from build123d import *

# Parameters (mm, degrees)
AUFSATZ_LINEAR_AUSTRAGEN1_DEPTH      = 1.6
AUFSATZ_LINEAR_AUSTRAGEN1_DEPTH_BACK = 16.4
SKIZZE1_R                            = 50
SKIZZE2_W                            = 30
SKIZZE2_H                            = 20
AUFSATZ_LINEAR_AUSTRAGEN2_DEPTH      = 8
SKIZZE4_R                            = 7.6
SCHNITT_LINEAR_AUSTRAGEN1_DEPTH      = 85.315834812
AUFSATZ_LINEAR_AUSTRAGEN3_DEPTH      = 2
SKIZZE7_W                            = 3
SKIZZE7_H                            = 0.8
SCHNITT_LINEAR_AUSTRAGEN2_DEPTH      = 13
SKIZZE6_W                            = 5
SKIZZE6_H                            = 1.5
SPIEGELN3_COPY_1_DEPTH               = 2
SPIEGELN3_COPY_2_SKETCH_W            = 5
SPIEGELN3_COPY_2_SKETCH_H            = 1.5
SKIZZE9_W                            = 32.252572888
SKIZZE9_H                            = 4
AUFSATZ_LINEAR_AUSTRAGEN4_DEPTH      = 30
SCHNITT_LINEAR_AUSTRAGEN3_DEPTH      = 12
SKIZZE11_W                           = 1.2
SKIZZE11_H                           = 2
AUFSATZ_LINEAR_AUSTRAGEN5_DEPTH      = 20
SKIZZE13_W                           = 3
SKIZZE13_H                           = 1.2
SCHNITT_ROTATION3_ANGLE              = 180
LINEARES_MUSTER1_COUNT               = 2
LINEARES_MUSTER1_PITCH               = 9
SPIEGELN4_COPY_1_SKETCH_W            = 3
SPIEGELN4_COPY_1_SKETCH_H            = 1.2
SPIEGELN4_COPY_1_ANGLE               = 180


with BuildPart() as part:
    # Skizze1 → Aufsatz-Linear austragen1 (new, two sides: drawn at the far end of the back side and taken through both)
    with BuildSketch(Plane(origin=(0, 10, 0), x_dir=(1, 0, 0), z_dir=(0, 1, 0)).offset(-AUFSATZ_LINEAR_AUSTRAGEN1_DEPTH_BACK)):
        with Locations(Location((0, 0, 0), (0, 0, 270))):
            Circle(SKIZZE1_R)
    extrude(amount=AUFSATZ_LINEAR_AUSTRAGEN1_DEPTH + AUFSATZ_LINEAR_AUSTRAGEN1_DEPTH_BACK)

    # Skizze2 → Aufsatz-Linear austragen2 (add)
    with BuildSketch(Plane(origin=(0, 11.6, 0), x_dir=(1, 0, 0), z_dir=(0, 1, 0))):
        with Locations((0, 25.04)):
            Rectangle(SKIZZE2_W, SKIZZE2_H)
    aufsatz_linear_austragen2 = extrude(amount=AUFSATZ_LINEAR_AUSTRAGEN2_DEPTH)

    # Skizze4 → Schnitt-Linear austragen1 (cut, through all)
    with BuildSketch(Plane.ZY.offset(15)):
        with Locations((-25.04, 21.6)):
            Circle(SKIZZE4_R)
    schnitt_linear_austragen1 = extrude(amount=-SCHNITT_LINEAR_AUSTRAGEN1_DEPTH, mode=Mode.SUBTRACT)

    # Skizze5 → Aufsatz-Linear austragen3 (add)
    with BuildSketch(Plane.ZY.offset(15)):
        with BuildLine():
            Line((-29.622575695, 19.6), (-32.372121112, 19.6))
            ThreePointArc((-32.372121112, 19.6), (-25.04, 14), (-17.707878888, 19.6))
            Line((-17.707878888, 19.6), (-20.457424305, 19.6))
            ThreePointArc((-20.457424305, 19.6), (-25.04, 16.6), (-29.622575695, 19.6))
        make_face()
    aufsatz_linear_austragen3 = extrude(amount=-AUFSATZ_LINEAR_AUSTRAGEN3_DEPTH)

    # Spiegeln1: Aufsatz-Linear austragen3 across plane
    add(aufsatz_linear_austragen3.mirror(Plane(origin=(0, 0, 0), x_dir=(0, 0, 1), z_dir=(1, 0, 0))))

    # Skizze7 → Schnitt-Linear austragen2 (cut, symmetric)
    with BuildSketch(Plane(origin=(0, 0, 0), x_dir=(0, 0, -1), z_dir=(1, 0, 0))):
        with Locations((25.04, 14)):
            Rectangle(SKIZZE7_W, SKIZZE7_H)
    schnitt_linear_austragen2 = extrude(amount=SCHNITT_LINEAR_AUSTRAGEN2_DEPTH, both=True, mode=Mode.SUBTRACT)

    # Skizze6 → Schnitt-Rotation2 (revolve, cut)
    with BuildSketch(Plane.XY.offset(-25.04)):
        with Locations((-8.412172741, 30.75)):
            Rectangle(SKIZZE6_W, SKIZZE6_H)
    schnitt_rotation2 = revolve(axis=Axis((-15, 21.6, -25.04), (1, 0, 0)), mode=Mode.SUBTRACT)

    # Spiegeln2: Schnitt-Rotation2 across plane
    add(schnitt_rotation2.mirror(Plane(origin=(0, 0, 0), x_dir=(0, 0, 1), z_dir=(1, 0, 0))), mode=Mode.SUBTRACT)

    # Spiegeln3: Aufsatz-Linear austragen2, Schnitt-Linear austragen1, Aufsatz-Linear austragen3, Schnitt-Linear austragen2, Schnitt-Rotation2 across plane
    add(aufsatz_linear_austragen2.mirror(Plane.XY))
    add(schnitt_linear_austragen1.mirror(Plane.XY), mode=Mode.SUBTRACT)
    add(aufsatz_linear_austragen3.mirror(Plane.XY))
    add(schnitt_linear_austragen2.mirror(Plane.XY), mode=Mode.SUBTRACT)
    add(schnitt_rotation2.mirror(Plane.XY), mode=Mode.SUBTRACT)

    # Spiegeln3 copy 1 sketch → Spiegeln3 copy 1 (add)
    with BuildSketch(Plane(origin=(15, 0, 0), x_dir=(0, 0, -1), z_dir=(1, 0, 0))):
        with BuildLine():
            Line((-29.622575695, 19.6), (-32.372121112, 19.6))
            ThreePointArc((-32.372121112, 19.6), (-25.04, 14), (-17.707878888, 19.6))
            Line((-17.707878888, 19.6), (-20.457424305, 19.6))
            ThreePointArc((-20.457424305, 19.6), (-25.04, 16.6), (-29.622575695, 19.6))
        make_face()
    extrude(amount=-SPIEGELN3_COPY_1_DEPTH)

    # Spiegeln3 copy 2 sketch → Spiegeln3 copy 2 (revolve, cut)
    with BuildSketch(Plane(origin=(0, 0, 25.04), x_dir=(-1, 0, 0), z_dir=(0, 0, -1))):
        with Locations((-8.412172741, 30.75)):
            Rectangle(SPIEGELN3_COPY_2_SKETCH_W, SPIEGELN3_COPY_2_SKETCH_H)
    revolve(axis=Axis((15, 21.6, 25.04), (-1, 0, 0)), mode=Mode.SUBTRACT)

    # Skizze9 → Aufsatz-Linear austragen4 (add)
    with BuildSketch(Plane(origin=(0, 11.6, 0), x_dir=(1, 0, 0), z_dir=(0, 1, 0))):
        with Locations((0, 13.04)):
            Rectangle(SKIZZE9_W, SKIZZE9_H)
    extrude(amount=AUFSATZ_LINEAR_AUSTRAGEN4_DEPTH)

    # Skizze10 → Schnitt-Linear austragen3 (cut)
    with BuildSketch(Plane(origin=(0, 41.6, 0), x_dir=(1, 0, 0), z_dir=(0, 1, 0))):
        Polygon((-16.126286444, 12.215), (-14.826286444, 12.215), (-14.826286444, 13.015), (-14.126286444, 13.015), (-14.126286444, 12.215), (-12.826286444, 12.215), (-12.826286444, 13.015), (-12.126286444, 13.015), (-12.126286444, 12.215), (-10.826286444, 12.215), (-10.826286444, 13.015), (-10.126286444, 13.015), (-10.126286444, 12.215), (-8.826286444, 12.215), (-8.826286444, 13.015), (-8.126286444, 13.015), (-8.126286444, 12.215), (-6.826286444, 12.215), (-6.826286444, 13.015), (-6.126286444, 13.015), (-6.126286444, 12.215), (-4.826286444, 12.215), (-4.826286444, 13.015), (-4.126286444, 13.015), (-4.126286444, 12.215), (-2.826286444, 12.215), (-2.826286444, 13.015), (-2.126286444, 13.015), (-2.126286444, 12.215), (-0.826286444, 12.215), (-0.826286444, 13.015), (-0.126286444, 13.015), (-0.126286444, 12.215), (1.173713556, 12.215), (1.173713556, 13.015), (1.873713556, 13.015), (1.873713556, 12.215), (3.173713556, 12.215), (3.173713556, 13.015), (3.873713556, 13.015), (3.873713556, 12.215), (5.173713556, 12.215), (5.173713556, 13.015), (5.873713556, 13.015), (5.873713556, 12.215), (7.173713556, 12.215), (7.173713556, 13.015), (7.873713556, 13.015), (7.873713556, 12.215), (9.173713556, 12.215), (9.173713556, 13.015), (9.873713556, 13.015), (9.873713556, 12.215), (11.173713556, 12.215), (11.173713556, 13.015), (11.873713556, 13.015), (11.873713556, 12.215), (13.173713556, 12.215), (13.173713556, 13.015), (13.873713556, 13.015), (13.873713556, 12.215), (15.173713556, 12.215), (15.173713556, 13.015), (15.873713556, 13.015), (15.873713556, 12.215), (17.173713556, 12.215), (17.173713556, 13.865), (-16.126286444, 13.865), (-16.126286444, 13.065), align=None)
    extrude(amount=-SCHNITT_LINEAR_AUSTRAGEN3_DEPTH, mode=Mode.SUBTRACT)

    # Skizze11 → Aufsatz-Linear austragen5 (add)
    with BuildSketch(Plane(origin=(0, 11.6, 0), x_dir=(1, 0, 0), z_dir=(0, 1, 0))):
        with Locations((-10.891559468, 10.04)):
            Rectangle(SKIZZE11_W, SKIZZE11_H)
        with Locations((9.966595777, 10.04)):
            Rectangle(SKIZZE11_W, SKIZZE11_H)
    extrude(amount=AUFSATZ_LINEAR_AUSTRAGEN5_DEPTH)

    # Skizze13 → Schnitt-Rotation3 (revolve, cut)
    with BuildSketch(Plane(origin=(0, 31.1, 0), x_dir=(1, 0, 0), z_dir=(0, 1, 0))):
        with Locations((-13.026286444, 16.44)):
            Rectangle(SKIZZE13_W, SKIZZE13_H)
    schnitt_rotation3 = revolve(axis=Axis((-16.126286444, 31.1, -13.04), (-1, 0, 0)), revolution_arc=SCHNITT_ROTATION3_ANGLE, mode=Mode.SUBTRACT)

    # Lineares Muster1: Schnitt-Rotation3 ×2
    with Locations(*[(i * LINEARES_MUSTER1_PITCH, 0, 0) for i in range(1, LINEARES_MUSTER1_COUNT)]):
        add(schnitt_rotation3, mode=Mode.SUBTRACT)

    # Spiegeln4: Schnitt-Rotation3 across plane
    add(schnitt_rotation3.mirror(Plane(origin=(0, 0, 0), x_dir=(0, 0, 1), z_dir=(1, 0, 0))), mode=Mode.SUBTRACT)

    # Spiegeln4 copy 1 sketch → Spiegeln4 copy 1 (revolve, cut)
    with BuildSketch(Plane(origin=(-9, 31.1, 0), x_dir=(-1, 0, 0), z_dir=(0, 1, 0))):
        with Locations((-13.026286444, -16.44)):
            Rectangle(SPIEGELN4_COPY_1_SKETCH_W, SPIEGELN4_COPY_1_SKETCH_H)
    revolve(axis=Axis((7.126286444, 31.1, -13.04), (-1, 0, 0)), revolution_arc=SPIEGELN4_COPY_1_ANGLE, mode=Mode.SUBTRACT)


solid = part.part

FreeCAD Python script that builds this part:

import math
import FreeCAD as App
import Part
import Sketcher
from FreeCAD import Vector


def add_polygon(sketch, points):
    """Adds a closed chain of lines whose ends are joined by coincident constraints."""
    first, n = sketch.GeometryCount, len(points)
    for a, b in zip(points, points[1:] + points[:1]):
        sketch.addGeometry(Part.LineSegment(App.Vector(*a, 0), App.Vector(*b, 0)), False)
    for i in range(n):
        sketch.addConstraint(Sketcher.Constraint("Coincident", first + i, 2, first + (i + 1) % n, 1))

doc = App.newDocument("Part")
body = doc.addObject("PartDesign::Body", "Body")

sketch1 = body.newObject("Sketcher::SketchObject", "Sketch")
sketch1.AttachmentSupport = (doc.getObject("XZ_Plane"), [""])
sketch1.MapMode = "FlatFace"
sketch1.AttachmentOffset = App.Placement(Vector(0, 0, -10), App.Rotation())
sketch1.addGeometry(Part.Circle(Vector(0, 0, 0), Vector(0, 0, 1), 50), False)
sketch1.addConstraint([
    Sketcher.Constraint("Coincident", 0, 3, -1, 1),
    Sketcher.Constraint("Diameter", 0, 100.0),
])
pad1 = body.newObject("PartDesign::Pad", "Pad")
pad1.Profile = sketch1
pad1.Type = "TwoLengths"
pad1.Length = 1.6
pad1.Length2 = 16.4
pad1.Reversed = True

sketch2 = body.newObject("Sketcher::SketchObject", "Sketch001")
sketch2.AttachmentSupport = (doc.getObject("XZ_Plane"), [""])
sketch2.MapMode = "FlatFace"
sketch2.AttachmentOffset = App.Placement(Vector(0, 0, -11.6), App.Rotation())
add_polygon(sketch2, [(-15, -35), (-15, -15), (15, -15), (15, -35)])
sketch2.addConstraint([
    Sketcher.Constraint("Vertical", 0),
    Sketcher.Constraint("Horizontal", 1),
    Sketcher.Constraint("Vertical", 2),
    Sketcher.Constraint("Horizontal", 3),
    Sketcher.Constraint("DistanceX", 1, 1, 1, 2, 30.0),
    Sketcher.Constraint("DistanceY", 0, 1, 0, 2, 20.0),
    Sketcher.Constraint("DistanceX", 0, 2, -1, 1, 15.0),
    Sketcher.Constraint("DistanceY", 0, 2, -1, 1, 15.04),
])
pad2 = body.newObject("PartDesign::Pad", "Pad001")
pad2.Profile = sketch2
pad2.Length = 8
pad2.Reversed = True

sketch3 = body.newObject("Sketcher::SketchObject", "Sketch002")
sketch3.AttachmentSupport = (doc.getObject("YZ_Plane"), [""])
sketch3.MapMode = "FlatFace"
sketch3.AttachmentOffset = App.Placement(Vector(0, 0, -15), App.Rotation())
sketch3.addGeometry(Part.Circle(Vector(22, -25, 0), Vector(0, 0, 1), 8), False)
sketch3.addConstraint([
    Sketcher.Constraint("Diameter", 0, 15.2),
    Sketcher.Constraint("DistanceX", -1, 1, 0, 3, 21.6),
    Sketcher.Constraint("DistanceY", 0, 3, -1, 1, 25.04),
])
pocket1 = body.newObject("PartDesign::Pocket", "Pocket")
pocket1.Profile = sketch3
pocket1.Type = "ThroughAll"
pocket1.Reversed = True

sketch4 = body.newObject("Sketcher::SketchObject", "Sketch003")
sketch4.AttachmentSupport = (doc.getObject("YZ_Plane"), [""])
sketch4.MapMode = "FlatFace"
sketch4.AttachmentOffset = App.Placement(Vector(0, 0, -15), App.Rotation())
sketch4.addGeometry([
    Part.LineSegment(Vector(19.6, -29.6, 0), Vector(19.6, -32.4, 0)),
    Part.ArcOfCircle(Part.Circle(Vector(21.6, -25, 0), Vector(0, 0, 1), 7.6), math.radians(105), math.radians(255)),
    Part.LineSegment(Vector(19.6, -17.7, 0), Vector(19.6, -20.5, 0)),
    Part.ArcOfCircle(Part.Circle(Vector(21.6, -25, 0), Vector(0, 0, 1), 5), math.radians(114), math.radians(246)),
], False)
sketch4.addConstraint([
    Sketcher.Constraint("Coincident", 0, 2, 1, 2),
    Sketcher.Constraint("Coincident", 1, 1, 2, 1),
    Sketcher.Constraint("Coincident", 2, 2, 3, 1),
    Sketcher.Constraint("Coincident", 3, 2, 0, 1),
    Sketcher.Constraint("Vertical", 0),
    Sketcher.Constraint("Vertical", 2),
    Sketcher.Constraint("Coincident", 3, 3, 1, 3),
    Sketcher.Constraint("Vertical", 0, 2, 1, 1),
    Sketcher.Constraint("Radius", 3, 5.0),
    Sketcher.Constraint("Radius", 1, 7.6),
    Sketcher.Constraint("DistanceX", 0, 2, 1, 3, 2.0),
    Sketcher.Constraint("DistanceX", -1, 1, 1, 3, 21.6),
    Sketcher.Constraint("DistanceY", 1, 3, -1, 1, 25.04),
])
pad3 = body.newObject("PartDesign::Pad", "Pad002")
pad3.Profile = sketch4
pad3.Length = 2
doc.recompute()

mirrored = body.newObject("PartDesign::Mirrored", "Mirrored")
mirrored.Originals = [pad3]
mirrored.MirrorPlane = (doc.getObject("YZ_Plane"), [""])
body.Tip = mirrored

sketch5 = body.newObject("Sketcher::SketchObject", "Sketch004")
sketch5.AttachmentSupport = (doc.getObject("YZ_Plane"), [""])
sketch5.MapMode = "FlatFace"
add_polygon(sketch5, [(14.4, -23.5), (13.6, -23.5), (13.6, -26.5), (14.4, -26.5)])
sketch5.addConstraint([
    Sketcher.Constraint("Horizontal", 0),
    Sketcher.Constraint("Vertical", 1),
    Sketcher.Constraint("Horizontal", 2),
    Sketcher.Constraint("Vertical", 3),
    Sketcher.Constraint("DistanceY", 1, 2, 1, 1, 3.0),
    Sketcher.Constraint("DistanceX", 0, 2, 0, 1, 0.8),
    Sketcher.Constraint("DistanceX", -1, 1, 0, 2, 13.6),
    Sketcher.Constraint("DistanceY", 0, 2, -1, 1, 23.54),
])
pocket2 = body.newObject("PartDesign::Pocket", "Pocket001")
pocket2.Profile = sketch5
pocket2.Length = 26
pocket2.Midplane = True

sketch6 = body.newObject("Sketcher::SketchObject", "Sketch005")
sketch6.AttachmentSupport = (doc.getObject("XY_Plane"), [""])
sketch6.MapMode = "FlatFace"
sketch6.AttachmentOffset = App.Placement(Vector(0, 0, -25.04), App.Rotation())
add_polygon(sketch6, [(-10.9, 31.5), (-10.9, 30), (-5.9, 30), (-5.9, 31.5)])
sketch6.addGeometry(Part.LineSegment(Vector(-10.9, 21.6, 0), Vector(-5.9, 21.6, 0)), True)
sketch6.addConstraint([
    Sketcher.Constraint("Vertical", 0),
    Sketcher.Constraint("Horizontal", 1),
    Sketcher.Constraint("Vertical", 2),
    Sketcher.Constraint("Horizontal", 3),
    Sketcher.Constraint("Horizontal", 4),
    Sketcher.Constraint("Vertical", 3, 2, 4, 1),
    Sketcher.Constraint("Vertical", 2, 2, 4, 2),
    Sketcher.Constraint("DistanceX", 1, 1, 1, 2, 5.0),
    Sketcher.Constraint("DistanceY", 0, 2, 0, 1, 1.5),
    Sketcher.Constraint("DistanceY", -1, 1, 0, 2, 30.0),
    Sketcher.Constraint("DistanceY", -1, 1, 4, 1, 21.6),
    Sketcher.Constraint("DistanceX", 0, 2, -1, 1, 10.912173),
])
groove = body.newObject("PartDesign::Groove", "Groove")
groove.Profile = sketch6
groove.ReferenceAxis = (sketch6, ["Axis0"])
groove.Angle = 360
doc.recompute()

mirrored2 = body.newObject("PartDesign::Mirrored", "Mirrored001")
mirrored2.Originals = [groove]
mirrored2.MirrorPlane = (doc.getObject("YZ_Plane"), [""])
body.Tip = mirrored2
doc.recompute()

mirrored3 = body.newObject("PartDesign::Mirrored", "Mirrored002")
mirrored3.Originals = [pad2, pocket1, pad3, pocket2, groove]
mirrored3.MirrorPlane = (doc.getObject("XY_Plane"), [""])
body.Tip = mirrored3

sketch7 = body.newObject("Sketcher::SketchObject", "Sketch006")
sketch7.AttachmentSupport = (doc.getObject("YZ_Plane"), [""])
sketch7.MapMode = "FlatFace"
sketch7.AttachmentOffset = App.Placement(Vector(0, 0, 15), App.Rotation())
sketch7.addGeometry([
    Part.LineSegment(Vector(19.6, 29.6, 0), Vector(19.6, 32.4, 0)),
    Part.ArcOfCircle(Part.Circle(Vector(21.6, 25, 0), Vector(0, 0, 1), 7.6), math.radians(105), math.radians(255)),
    Part.LineSegment(Vector(19.6, 17.7, 0), Vector(19.6, 20.5, 0)),
    Part.ArcOfCircle(Part.Circle(Vector(21.6, 25, 0), Vector(0, 0, 1), 5), math.radians(114), math.radians(246)),
], False)
sketch7.addConstraint([
    Sketcher.Constraint("Coincident", 0, 2, 1, 1),
    Sketcher.Constraint("Coincident", 1, 2, 2, 1),
    Sketcher.Constraint("Coincident", 2, 2, 3, 2),
    Sketcher.Constraint("Coincident", 3, 1, 0, 1),
    Sketcher.Constraint("Vertical", 0),
    Sketcher.Constraint("Vertical", 2),
    Sketcher.Constraint("Coincident", 3, 3, 1, 3),
    Sketcher.Constraint("Vertical", 0, 2, 1, 2),
    Sketcher.Constraint("Radius", 3, 5.0),
    Sketcher.Constraint("Radius", 1, 7.6),
    Sketcher.Constraint("DistanceX", 0, 2, 1, 3, 2.0),
    Sketcher.Constraint("DistanceX", -1, 1, 1, 3, 21.6),
    Sketcher.Constraint("DistanceY", -1, 1, 1, 3, 25.04),
])
pad4 = body.newObject("PartDesign::Pad", "Pad003")
pad4.Profile = sketch7
pad4.Length = 2
pad4.Reversed = True

sketch8 = body.newObject("Sketcher::SketchObject", "Sketch007")
sketch8.AttachmentSupport = (doc.getObject("XY_Plane"), [""])
sketch8.MapMode = "FlatFace"
sketch8.AttachmentOffset = App.Placement(Vector(0, 0, 25.04), App.Rotation())
add_polygon(sketch8, [(10.9, 31.5), (10.9, 30), (5.9, 30), (5.9, 31.5)])
sketch8.addGeometry(Part.LineSegment(Vector(10.9, 21.6, 0), Vector(5.9, 21.6, 0)), True)
sketch8.addConstraint([
    Sketcher.Constraint("Vertical", 0),
    Sketcher.Constraint("Horizontal", 1),
    Sketcher.Constraint("Vertical", 2),
    Sketcher.Constraint("Horizontal", 3),
    Sketcher.Constraint("Horizontal", 4),
    Sketcher.Constraint("Vertical", 3, 2, 4, 1),
    Sketcher.Constraint("Vertical", 2, 2, 4, 2),
    Sketcher.Constraint("DistanceX", 1, 2, 1, 1, 5.0),
    Sketcher.Constraint("DistanceY", 0, 2, 0, 1, 1.5),
    Sketcher.Constraint("DistanceY", -1, 1, 0, 2, 30.0),
    Sketcher.Constraint("DistanceY", -1, 1, 4, 1, 21.6),
    Sketcher.Constraint("DistanceX", -1, 1, 0, 2, 10.912173),
])
groove2 = body.newObject("PartDesign::Groove", "Groove001")
groove2.Profile = sketch8
groove2.ReferenceAxis = (sketch8, ["Axis0"])
groove2.Angle = 360

sketch9 = body.newObject("Sketcher::SketchObject", "Sketch008")
sketch9.AttachmentSupport = (doc.getObject("XZ_Plane"), [""])
sketch9.MapMode = "FlatFace"
sketch9.AttachmentOffset = App.Placement(Vector(0, 0, -11.6), App.Rotation())
add_polygon(sketch9, [(-16.1, -15), (-16.1, -11), (16.1, -11), (16.1, -15)])
sketch9.addConstraint([
    Sketcher.Constraint("Vertical", 0),
    Sketcher.Constraint("Horizontal", 1),
    Sketcher.Constraint("Vertical", 2),
    Sketcher.Constraint("Horizontal", 3),
    Sketcher.Constraint("DistanceY", 0, 1, 0, 2, 4.0),
    Sketcher.Constraint("DistanceY", 0, 2, -1, 1, 11.04),
    Sketcher.Constraint("DistanceX", 1, 1, 1, 2, 32.252573),
    Sketcher.Constraint("DistanceX", 0, 2, -1, 1, 16.126286),
])
pad5 = body.newObject("PartDesign::Pad", "Pad004")
pad5.Profile = sketch9
pad5.Length = 30
pad5.Reversed = True

sketch10 = body.newObject("Sketcher::SketchObject", "Sketch009")
sketch10.AttachmentSupport = (doc.getObject("XZ_Plane"), [""])
sketch10.MapMode = "FlatFace"
sketch10.AttachmentOffset = App.Placement(Vector(0, 0, -41.6), App.Rotation())
add_polygon(sketch10, [(-16.1, -12.2), (-14.8, -12.2), (-14.8, -13), (-14.1, -13), (-14.1, -12.2), (-12.8, -12.2), (-12.8, -13), (-12.1, -13), (-12.1, -12.2), (-10.8, -12.2), (-10.8, -13), (-10.1, -13), (-10.1, -12.2), (-8.8, -12.2), (-8.8, -13), (-8.1, -13), (-8.1, -12.2), (-6.8, -12.2), (-6.8, -13), (-6.1, -13), (-6.1, -12.2), (-4.8, -12.2), (-4.8, -13), (-4.1, -13), (-4.1, -12.2), (-2.8, -12.2), (-2.8, -13), (-2.1, -13), (-2.1, -12.2), (-0.8, -12.2), (-0.8, -13), (-0.1, -13), (-0.1, -12.2), (1.2, -12.2), (1.2, -13), (1.9, -13), (1.9, -12.2), (3.2, -12.2), (3.2, -13), (3.9, -13), (3.9, -12.2), (5.2, -12.2), (5.2, -13), (5.9, -13), (5.9, -12.2), (7.2, -12.2), (7.2, -13), (7.9, -13), (7.9, -12.2), (9.2, -12.2), (9.2, -13), (9.9, -13), (9.9, -12.2), (11.2, -12.2), (11.2, -13), (11.9, -13), (11.9, -12.2), (13.2, -12.2), (13.2, -13), (13.9, -13), (13.9, -12.2), (15.2, -12.2), (15.2, -13), (15.9, -13), (15.9, -12.2), (17.2, -12.2), (17.2, -13.9), (-16.1, -13.9)])
sketch10.addConstraint([
    Sketcher.Constraint("Horizontal", 0),
    Sketcher.Constraint("Vertical", 1),
    Sketcher.Constraint("Horizontal", 2),
    Sketcher.Constraint("Vertical", 3),
    Sketcher.Constraint("Horizontal", 4),
    Sketcher.Constraint("Vertical", 5),
    Sketcher.Constraint("Horizontal", 6),
    Sketcher.Constraint("Vertical", 7),
    Sketcher.Constraint("Horizontal", 8),
    Sketcher.Constraint("Vertical", 9),
    Sketcher.Constraint("Horizontal", 10),
    Sketcher.Constraint("Vertical", 11),
    Sketcher.Constraint("Horizontal", 12),
    Sketcher.Constraint("Vertical", 13),
    Sketcher.Constraint("Horizontal", 14),
    Sketcher.Constraint("Vertical", 15),
    Sketcher.Constraint("Horizontal", 16),
    Sketcher.Constraint("Vertical", 17),
    Sketcher.Constraint("Horizontal", 18),
    Sketcher.Constraint("Vertical", 19),
    Sketcher.Constraint("Horizontal", 20),
    Sketcher.Constraint("Vertical", 21),
    Sketcher.Constraint("Horizontal", 22),
    Sketcher.Constraint("Vertical", 23),
    Sketcher.Constraint("Horizontal", 24),
    Sketcher.Constraint("Vertical", 25),
    Sketcher.Constraint("Horizontal", 26),
    Sketcher.Constraint("Vertical", 27),
    Sketcher.Constraint("Horizontal", 28),
    Sketcher.Constraint("Vertical", 29),
    Sketcher.Constraint("Horizontal", 30),
    Sketcher.Constraint("Vertical", 31),
    Sketcher.Constraint("Horizontal", 32),
    Sketcher.Constraint("Vertical", 33),
    Sketcher.Constraint("Horizontal", 34),
    Sketcher.Constraint("Vertical", 35),
    Sketcher.Constraint("Horizontal", 36),
    Sketcher.Constraint("Vertical", 37),
    Sketcher.Constraint("Horizontal", 38),
    Sketcher.Constraint("Vertical", 39),
    Sketcher.Constraint("Horizontal", 40),
    Sketcher.Constraint("Vertical", 41),
    Sketcher.Constraint("Horizontal", 42),
    Sketcher.Constraint("Vertical", 43),
    Sketcher.Constraint("Horizontal", 44),
    Sketcher.Constraint("Vertical", 45),
    Sketcher.Constraint("Horizontal", 46),
    Sketcher.Constraint("Vertical", 47),
    Sketcher.Constraint("Horizontal", 48),
    Sketcher.Constraint("Vertical", 49),
    Sketcher.Constraint("Horizontal", 50),
    Sketcher.Constraint("Vertical", 51),
    Sketcher.Constraint("Horizontal", 52),
    Sketcher.Constraint("Vertical", 53),
    Sketcher.Constraint("Horizontal", 54),
    Sketcher.Constraint("Vertical", 55),
    Sketcher.Constraint("Horizontal", 56),
    Sketcher.Constraint("Vertical", 57),
    Sketcher.Constraint("Horizontal", 58),
    Sketcher.Constraint("Vertical", 59),
    Sketcher.Constraint("Horizontal", 60),
    Sketcher.Constraint("Vertical", 61),
    Sketcher.Constraint("Horizontal", 62),
    Sketcher.Constraint("Vertical", 63),
    Sketcher.Constraint("Horizontal", 64),
    Sketcher.Constraint("Vertical", 65),
    Sketcher.Constraint("Horizontal", 66),
    Sketcher.Constraint("Vertical", 67),
    Sketcher.Constraint("Horizontal", 0, 2, 3, 2),
    Sketcher.Constraint("Horizontal", 2, 2, 5, 2),
    Sketcher.Constraint("Horizontal", 4, 2, 7, 2),
    Sketcher.Constraint("Horizontal", 6, 2, 9, 2),
    Sketcher.Constraint("Horizontal", 8, 2, 11, 2),
    Sketcher.Constraint("Horizontal", 10, 2, 13, 2),
    Sketcher.Constraint("Horizontal", 12, 2, 15, 2),
    Sketcher.Constraint("Horizontal", 14, 2, 17, 2),
    Sketcher.Constraint("Horizontal", 16, 2, 19, 2),
    Sketcher.Constraint("Horizontal", 18, 2, 21, 2),
    Sketcher.Constraint("Horizontal", 20, 2, 23, 2),
    Sketcher.Constraint("Horizontal", 22, 2, 25, 2),
    Sketcher.Constraint("Horizontal", 24, 2, 27, 2),
    Sketcher.Constraint("Horizontal", 26, 2, 29, 2),
    Sketcher.Constraint("Horizontal", 28, 2, 31, 2),
    Sketcher.Constraint("Horizontal", 30, 2, 33, 2),
    Sketcher.Constraint("Horizontal", 32, 2, 35, 2),
    Sketcher.Constraint("Horizontal", 34, 2, 37, 2),
    Sketcher.Constraint("Horizontal", 36, 2, 39, 2),
    Sketcher.Constraint("Horizontal", 38, 2, 41, 2),
    Sketcher.Constraint("Horizontal", 40, 2, 43, 2),
    Sketcher.Constraint("Horizontal", 42, 2, 45, 2),
    Sketcher.Constraint("Horizontal", 44, 2, 47, 2),
    Sketcher.Constraint("Horizontal", 46, 2, 49, 2),
    Sketcher.Constraint("Horizontal", 48, 2, 51, 2),
    Sketcher.Constraint("Horizontal", 50, 2, 53, 2),
    Sketcher.Constraint("Horizontal", 52, 2, 55, 2),
    Sketcher.Constraint("Horizontal", 54, 2, 57, 2),
    Sketcher.Constraint("Horizontal", 56, 2, 59, 2),
    Sketcher.Constraint("Horizontal", 58, 2, 61, 2),
    Sketcher.Constraint("Horizontal", 60, 2, 63, 2),
    Sketcher.Constraint("Equal", 0, 4),
    Sketcher.Constraint("Equal", 2, 6),
    Sketcher.Constraint("Equal", 4, 8),
    Sketcher.Constraint("Equal", 6, 10),
    Sketcher.Constraint("Equal", 8, 12),
    Sketcher.Constraint("Equal", 10, 14),
    Sketcher.Constraint("Equal", 12, 16),
    Sketcher.Constraint("Equal", 14, 18),
    Sketcher.Constraint("Equal", 16, 20),
    Sketcher.Constraint("Equal", 18, 22),
    Sketcher.Constraint("Equal", 20, 24),
    Sketcher.Constraint("Equal", 22, 26),
    Sketcher.Constraint("Equal", 24, 28),
    Sketcher.Constraint("Equal", 26, 30),
    Sketcher.Constraint("Equal", 28, 32),
    Sketcher.Constraint("Equal", 30, 34),
    Sketcher.Constraint("Equal", 32, 36),
    Sketcher.Constraint("Equal", 34, 38),
    Sketcher.Constraint("Equal", 36, 40),
    Sketcher.Constraint("Equal", 38, 42),
    Sketcher.Constraint("Equal", 40, 44),
    Sketcher.Constraint("Equal", 42, 46),
    Sketcher.Constraint("Equal", 44, 48),
    Sketcher.Constraint("Equal", 46, 50),
    Sketcher.Constraint("Equal", 48, 52),
    Sketcher.Constraint("Equal", 50, 54),
    Sketcher.Constraint("Equal", 52, 56),
    Sketcher.Constraint("Equal", 54, 58),
    Sketcher.Constraint("Equal", 56, 60),
    Sketcher.Constraint("Equal", 58, 62),
    Sketcher.Constraint("Equal", 60, 64),
    Sketcher.Constraint("DistanceX", 0, 1, 0, 2, 1.3),
    Sketcher.Constraint("DistanceX", 2, 1, 2, 2, 0.7),
    Sketcher.Constraint("DistanceY", 1, 2, 1, 1, 0.8),
    Sketcher.Constraint("DistanceY", 65, 2, 65, 1, 1.65),
    Sketcher.Constraint("DistanceY", 0, 2, -1, 1, 12.215),
    Sketcher.Constraint("DistanceX", 0, 2, -1, 1, 14.826286),
])
pocket3 = body.newObject("PartDesign::Pocket", "Pocket002")
pocket3.Profile = sketch10
pocket3.Length = 12
pocket3.Reversed = True

sketch11 = body.newObject("Sketcher::SketchObject", "Sketch010")
sketch11.AttachmentSupport = (doc.getObject("XZ_Plane"), [""])
sketch11.MapMode = "FlatFace"
sketch11.AttachmentOffset = App.Placement(Vector(0, 0, -11.6), App.Rotation())
add_polygon(sketch11, [(-11.5, -11), (-11.5, -9), (-10.3, -9), (-10.3, -11)])
add_polygon(sketch11, [(9.4, -11), (9.4, -9), (10.6, -9), (10.6, -11)])
sketch11.addConstraint([
    Sketcher.Constraint("Vertical", 0),
    Sketcher.Constraint("Horizontal", 1),
    Sketcher.Constraint("Vertical", 2),
    Sketcher.Constraint("Horizontal", 3),
    Sketcher.Constraint("Vertical", 4),
    Sketcher.Constraint("Horizontal", 5),
    Sketcher.Constraint("Vertical", 6),
    Sketcher.Constraint("Horizontal", 7),
    Sketcher.Constraint("Horizontal", 1, 2, 4, 2),
    Sketcher.Constraint("Horizontal", 3, 2, 6, 2),
    Sketcher.Constraint("Equal", 3, 5),
    Sketcher.Constraint("DistanceY", 0, 1, 0, 2, 2.0),
    Sketcher.Constraint("DistanceX", 1, 1, 1, 2, 1.2),
    Sketcher.Constraint("DistanceY", 0, 2, -1, 1, 9.04),
    Sketcher.Constraint("DistanceX", 0, 2, -1, 1, 11.491559),
    Sketcher.Constraint("DistanceX", -1, 1, 4, 2, 9.366596),
])
pad6 = body.newObject("PartDesign::Pad", "Pad005")
pad6.Profile = sketch11
pad6.Length = 20
pad6.Reversed = True

sketch12 = body.newObject("Sketcher::SketchObject", "Sketch011")
sketch12.AttachmentSupport = (doc.getObject("XZ_Plane"), [""])
sketch12.MapMode = "FlatFace"
sketch12.AttachmentOffset = App.Placement(Vector(0, 0, -31.1), App.Rotation())
add_polygon(sketch12, [(-14.5, -17), (-14.5, -15.8), (-11.5, -15.8), (-11.5, -17)])
sketch12.addGeometry(Part.LineSegment(Vector(-11.5, -13, 0), Vector(-14.5, -13, 0)), True)
sketch12.addConstraint([
    Sketcher.Constraint("Vertical", 0),
    Sketcher.Constraint("Horizontal", 1),
    Sketcher.Constraint("Vertical", 2),
    Sketcher.Constraint("Horizontal", 3),
    Sketcher.Constraint("Horizontal", 4),
    Sketcher.Constraint("Vertical", 2, 2, 4, 1),
    Sketcher.Constraint("Vertical", 3, 2, 4, 2),
    Sketcher.Constraint("DistanceX", 1, 1, 1, 2, 3.0),
    Sketcher.Constraint("DistanceY", 0, 1, 0, 2, 1.2),
    Sketcher.Constraint("DistanceY", 2, 2, 4, 1, 4.0),
    Sketcher.Constraint("DistanceY", 0, 2, -1, 1, 15.84),
    Sketcher.Constraint("DistanceX", 0, 2, -1, 1, 14.526286),
])
groove3 = body.newObject("PartDesign::Groove", "Groove002")
groove3.Profile = sketch12
groove3.ReferenceAxis = (sketch12, ["Axis0"])
groove3.Angle = 180
doc.recompute()

linearpattern = body.newObject("PartDesign::LinearPattern", "LinearPattern")
linearpattern.Originals = [groove3]
linearpattern.Direction = (doc.getObject("X_Axis"), [""])
linearpattern.Mode = "offset"
linearpattern.Offset = 9
linearpattern.Occurrences = 2
body.Tip = linearpattern
doc.recompute()

mirrored4 = body.newObject("PartDesign::Mirrored", "Mirrored003")
mirrored4.Originals = [groove3]
mirrored4.MirrorPlane = (doc.getObject("YZ_Plane"), [""])
body.Tip = mirrored4

sketch13 = body.newObject("Sketcher::SketchObject", "Sketch012")
sketch13.AttachmentSupport = (doc.getObject("XZ_Plane"), [""])
sketch13.MapMode = "FlatFace"
sketch13.AttachmentOffset = App.Placement(Vector(0, 0, -31.1), App.Rotation())
add_polygon(sketch13, [(5.5, -15.8), (5.5, -17), (2.5, -17), (2.5, -15.8)])
sketch13.addGeometry(Part.LineSegment(Vector(5.5, -13, 0), Vector(2.5, -13, 0)), True)
sketch13.addConstraint([
    Sketcher.Constraint("Vertical", 0),
    Sketcher.Constraint("Horizontal", 1),
    Sketcher.Constraint("Vertical", 2),
    Sketcher.Constraint("Horizontal", 3),
    Sketcher.Constraint("Horizontal", 4),
    Sketcher.Constraint("Vertical", 3, 2, 4, 1),
    Sketcher.Constraint("Vertical", 2, 2, 4, 2),
    Sketcher.Constraint("DistanceX", 1, 2, 1, 1, 3.0),
    Sketcher.Constraint("DistanceY", 0, 2, 0, 1, 1.2),
    Sketcher.Constraint("DistanceY", 0, 2, 4, 1, 4.0),
    Sketcher.Constraint("DistanceY", 0, 2, -1, 1, 17.04),
    Sketcher.Constraint("DistanceX", -1, 1, 0, 2, 5.526286),
])
groove4 = body.newObject("PartDesign::Groove", "Groove003")
groove4.Profile = sketch13
groove4.ReferenceAxis = (sketch13, ["Axis0"])
groove4.Angle = 180

doc.recompute()
